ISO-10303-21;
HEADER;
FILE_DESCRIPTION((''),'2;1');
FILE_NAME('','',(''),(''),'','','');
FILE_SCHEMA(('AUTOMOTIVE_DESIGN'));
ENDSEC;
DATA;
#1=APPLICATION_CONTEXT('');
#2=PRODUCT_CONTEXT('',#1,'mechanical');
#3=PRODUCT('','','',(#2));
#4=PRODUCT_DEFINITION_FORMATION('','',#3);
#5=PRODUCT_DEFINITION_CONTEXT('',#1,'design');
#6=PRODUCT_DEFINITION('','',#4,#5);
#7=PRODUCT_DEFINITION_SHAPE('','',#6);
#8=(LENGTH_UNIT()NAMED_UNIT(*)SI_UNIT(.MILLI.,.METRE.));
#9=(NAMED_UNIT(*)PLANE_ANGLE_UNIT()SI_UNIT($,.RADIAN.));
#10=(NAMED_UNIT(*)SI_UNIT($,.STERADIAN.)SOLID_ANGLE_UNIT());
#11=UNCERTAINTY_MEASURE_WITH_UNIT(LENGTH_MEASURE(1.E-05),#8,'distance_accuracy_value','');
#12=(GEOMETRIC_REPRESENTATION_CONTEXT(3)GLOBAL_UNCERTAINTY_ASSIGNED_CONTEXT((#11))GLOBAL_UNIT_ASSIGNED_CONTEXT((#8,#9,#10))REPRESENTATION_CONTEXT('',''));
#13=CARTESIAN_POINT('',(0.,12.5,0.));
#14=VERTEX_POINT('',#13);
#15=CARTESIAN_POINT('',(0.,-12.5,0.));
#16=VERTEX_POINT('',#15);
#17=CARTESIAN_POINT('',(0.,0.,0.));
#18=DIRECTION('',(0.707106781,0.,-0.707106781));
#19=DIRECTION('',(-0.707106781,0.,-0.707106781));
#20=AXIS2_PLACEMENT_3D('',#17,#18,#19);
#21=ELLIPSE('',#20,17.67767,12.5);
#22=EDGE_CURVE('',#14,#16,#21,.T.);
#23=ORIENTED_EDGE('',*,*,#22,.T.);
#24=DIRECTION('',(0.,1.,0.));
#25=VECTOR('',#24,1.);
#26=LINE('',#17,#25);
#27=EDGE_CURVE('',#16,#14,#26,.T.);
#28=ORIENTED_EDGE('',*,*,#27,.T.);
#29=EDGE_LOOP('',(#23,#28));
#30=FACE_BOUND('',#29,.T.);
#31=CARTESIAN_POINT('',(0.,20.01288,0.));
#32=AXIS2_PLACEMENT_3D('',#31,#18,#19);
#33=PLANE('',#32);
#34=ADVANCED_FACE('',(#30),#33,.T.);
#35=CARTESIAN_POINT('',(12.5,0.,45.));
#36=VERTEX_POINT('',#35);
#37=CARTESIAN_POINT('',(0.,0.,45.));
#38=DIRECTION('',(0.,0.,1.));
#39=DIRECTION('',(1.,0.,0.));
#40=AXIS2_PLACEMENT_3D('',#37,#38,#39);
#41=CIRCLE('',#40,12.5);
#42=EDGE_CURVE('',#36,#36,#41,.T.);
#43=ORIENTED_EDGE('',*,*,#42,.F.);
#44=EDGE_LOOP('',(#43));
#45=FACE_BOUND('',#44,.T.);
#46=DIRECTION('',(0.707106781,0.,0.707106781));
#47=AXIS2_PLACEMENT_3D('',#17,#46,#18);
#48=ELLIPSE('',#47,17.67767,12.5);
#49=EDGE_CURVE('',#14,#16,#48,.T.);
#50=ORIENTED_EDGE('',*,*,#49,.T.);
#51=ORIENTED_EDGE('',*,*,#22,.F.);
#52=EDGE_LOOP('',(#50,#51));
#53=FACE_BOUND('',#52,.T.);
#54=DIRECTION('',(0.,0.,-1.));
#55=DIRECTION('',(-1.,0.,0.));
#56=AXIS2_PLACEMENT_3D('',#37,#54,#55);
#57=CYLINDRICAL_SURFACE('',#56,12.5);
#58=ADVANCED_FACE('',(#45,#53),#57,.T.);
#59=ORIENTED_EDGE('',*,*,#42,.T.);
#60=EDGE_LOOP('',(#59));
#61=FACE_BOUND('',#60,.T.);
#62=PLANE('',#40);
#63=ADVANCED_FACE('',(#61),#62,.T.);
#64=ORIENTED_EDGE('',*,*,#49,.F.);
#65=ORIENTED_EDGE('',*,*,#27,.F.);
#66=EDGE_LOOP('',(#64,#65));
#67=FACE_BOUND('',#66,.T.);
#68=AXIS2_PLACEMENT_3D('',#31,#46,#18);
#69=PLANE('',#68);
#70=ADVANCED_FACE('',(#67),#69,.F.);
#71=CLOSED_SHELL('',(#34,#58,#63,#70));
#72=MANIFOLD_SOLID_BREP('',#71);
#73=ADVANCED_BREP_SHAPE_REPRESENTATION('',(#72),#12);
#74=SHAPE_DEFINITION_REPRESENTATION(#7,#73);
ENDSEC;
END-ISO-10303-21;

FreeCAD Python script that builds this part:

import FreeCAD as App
import Part
import Sketcher


def add_polygon(sketch, points):
    """Adds a closed chain of lines whose ends are joined by coincident constraints."""
    first, n = sketch.GeometryCount, len(points)
    for a, b in zip(points, points[1:] + points[:1]):
        sketch.addGeometry(Part.LineSegment(App.Vector(*a, 0), App.Vector(*b, 0)), False)
    for i in range(n):
        sketch.addConstraint(Sketcher.Constraint("Coincident", first + i, 2, first + (i + 1) % n, 1))

doc = App.newDocument("Part")
body = doc.addObject("PartDesign::Body", "Body")

sketch1 = body.newObject("Sketcher::SketchObject", "Sketch")
sketch1.AttachmentSupport = (doc.getObject("XY_Plane"), [""])
sketch1.MapMode = "FlatFace"
sketch1.addGeometry(Part.Circle(App.Vector(0, 0, 0), App.Vector(0, 0, 1), 12), False)
sketch1.addConstraint([
    Sketcher.Constraint("Coincident", 0, 3, -1, 1),
    Sketcher.Constraint("Diameter", 0, 25.0),
])
pad1 = body.newObject("PartDesign::Pad", "Pad")
pad1.Profile = sketch1
pad1.Length = 45

sketch2 = body.newObject("Sketcher::SketchObject", "Sketch001")
sketch2.AttachmentSupport = (doc.getObject("XZ_Plane"), [""])
sketch2.MapMode = "FlatFace"
sketch2.AttachmentOffset = App.Placement(App.Vector(0, 0, 15.98712), App.Rotation())
add_polygon(sketch2, [(12, 12), (0, 0), (12, 0)])
add_polygon(sketch2, [(-12, 0), (0, 0), (-12, 12)])
sketch2.addConstraint([
    Sketcher.Constraint("Horizontal", 1),
    Sketcher.Constraint("Vertical", 2),
    Sketcher.Constraint("Horizontal", 3),
    Sketcher.Constraint("Vertical", 5),
    Sketcher.Constraint("Coincident", 0, 2, -1, 1),
    Sketcher.Constraint("Coincident", 3, 2, -1, 1),
    Sketcher.Constraint("Symmetric", 2, 2, 4, 2, -2),
    Sketcher.Constraint("Perpendicular", 0, 4),
    Sketcher.Constraint("DistanceX", 1, 1, 1, 2, 12.5),
])
pocket1 = body.newObject("PartDesign::Pocket", "Pocket")
pocket1.Profile = sketch2
pocket1.Length = 36

doc.recompute()
